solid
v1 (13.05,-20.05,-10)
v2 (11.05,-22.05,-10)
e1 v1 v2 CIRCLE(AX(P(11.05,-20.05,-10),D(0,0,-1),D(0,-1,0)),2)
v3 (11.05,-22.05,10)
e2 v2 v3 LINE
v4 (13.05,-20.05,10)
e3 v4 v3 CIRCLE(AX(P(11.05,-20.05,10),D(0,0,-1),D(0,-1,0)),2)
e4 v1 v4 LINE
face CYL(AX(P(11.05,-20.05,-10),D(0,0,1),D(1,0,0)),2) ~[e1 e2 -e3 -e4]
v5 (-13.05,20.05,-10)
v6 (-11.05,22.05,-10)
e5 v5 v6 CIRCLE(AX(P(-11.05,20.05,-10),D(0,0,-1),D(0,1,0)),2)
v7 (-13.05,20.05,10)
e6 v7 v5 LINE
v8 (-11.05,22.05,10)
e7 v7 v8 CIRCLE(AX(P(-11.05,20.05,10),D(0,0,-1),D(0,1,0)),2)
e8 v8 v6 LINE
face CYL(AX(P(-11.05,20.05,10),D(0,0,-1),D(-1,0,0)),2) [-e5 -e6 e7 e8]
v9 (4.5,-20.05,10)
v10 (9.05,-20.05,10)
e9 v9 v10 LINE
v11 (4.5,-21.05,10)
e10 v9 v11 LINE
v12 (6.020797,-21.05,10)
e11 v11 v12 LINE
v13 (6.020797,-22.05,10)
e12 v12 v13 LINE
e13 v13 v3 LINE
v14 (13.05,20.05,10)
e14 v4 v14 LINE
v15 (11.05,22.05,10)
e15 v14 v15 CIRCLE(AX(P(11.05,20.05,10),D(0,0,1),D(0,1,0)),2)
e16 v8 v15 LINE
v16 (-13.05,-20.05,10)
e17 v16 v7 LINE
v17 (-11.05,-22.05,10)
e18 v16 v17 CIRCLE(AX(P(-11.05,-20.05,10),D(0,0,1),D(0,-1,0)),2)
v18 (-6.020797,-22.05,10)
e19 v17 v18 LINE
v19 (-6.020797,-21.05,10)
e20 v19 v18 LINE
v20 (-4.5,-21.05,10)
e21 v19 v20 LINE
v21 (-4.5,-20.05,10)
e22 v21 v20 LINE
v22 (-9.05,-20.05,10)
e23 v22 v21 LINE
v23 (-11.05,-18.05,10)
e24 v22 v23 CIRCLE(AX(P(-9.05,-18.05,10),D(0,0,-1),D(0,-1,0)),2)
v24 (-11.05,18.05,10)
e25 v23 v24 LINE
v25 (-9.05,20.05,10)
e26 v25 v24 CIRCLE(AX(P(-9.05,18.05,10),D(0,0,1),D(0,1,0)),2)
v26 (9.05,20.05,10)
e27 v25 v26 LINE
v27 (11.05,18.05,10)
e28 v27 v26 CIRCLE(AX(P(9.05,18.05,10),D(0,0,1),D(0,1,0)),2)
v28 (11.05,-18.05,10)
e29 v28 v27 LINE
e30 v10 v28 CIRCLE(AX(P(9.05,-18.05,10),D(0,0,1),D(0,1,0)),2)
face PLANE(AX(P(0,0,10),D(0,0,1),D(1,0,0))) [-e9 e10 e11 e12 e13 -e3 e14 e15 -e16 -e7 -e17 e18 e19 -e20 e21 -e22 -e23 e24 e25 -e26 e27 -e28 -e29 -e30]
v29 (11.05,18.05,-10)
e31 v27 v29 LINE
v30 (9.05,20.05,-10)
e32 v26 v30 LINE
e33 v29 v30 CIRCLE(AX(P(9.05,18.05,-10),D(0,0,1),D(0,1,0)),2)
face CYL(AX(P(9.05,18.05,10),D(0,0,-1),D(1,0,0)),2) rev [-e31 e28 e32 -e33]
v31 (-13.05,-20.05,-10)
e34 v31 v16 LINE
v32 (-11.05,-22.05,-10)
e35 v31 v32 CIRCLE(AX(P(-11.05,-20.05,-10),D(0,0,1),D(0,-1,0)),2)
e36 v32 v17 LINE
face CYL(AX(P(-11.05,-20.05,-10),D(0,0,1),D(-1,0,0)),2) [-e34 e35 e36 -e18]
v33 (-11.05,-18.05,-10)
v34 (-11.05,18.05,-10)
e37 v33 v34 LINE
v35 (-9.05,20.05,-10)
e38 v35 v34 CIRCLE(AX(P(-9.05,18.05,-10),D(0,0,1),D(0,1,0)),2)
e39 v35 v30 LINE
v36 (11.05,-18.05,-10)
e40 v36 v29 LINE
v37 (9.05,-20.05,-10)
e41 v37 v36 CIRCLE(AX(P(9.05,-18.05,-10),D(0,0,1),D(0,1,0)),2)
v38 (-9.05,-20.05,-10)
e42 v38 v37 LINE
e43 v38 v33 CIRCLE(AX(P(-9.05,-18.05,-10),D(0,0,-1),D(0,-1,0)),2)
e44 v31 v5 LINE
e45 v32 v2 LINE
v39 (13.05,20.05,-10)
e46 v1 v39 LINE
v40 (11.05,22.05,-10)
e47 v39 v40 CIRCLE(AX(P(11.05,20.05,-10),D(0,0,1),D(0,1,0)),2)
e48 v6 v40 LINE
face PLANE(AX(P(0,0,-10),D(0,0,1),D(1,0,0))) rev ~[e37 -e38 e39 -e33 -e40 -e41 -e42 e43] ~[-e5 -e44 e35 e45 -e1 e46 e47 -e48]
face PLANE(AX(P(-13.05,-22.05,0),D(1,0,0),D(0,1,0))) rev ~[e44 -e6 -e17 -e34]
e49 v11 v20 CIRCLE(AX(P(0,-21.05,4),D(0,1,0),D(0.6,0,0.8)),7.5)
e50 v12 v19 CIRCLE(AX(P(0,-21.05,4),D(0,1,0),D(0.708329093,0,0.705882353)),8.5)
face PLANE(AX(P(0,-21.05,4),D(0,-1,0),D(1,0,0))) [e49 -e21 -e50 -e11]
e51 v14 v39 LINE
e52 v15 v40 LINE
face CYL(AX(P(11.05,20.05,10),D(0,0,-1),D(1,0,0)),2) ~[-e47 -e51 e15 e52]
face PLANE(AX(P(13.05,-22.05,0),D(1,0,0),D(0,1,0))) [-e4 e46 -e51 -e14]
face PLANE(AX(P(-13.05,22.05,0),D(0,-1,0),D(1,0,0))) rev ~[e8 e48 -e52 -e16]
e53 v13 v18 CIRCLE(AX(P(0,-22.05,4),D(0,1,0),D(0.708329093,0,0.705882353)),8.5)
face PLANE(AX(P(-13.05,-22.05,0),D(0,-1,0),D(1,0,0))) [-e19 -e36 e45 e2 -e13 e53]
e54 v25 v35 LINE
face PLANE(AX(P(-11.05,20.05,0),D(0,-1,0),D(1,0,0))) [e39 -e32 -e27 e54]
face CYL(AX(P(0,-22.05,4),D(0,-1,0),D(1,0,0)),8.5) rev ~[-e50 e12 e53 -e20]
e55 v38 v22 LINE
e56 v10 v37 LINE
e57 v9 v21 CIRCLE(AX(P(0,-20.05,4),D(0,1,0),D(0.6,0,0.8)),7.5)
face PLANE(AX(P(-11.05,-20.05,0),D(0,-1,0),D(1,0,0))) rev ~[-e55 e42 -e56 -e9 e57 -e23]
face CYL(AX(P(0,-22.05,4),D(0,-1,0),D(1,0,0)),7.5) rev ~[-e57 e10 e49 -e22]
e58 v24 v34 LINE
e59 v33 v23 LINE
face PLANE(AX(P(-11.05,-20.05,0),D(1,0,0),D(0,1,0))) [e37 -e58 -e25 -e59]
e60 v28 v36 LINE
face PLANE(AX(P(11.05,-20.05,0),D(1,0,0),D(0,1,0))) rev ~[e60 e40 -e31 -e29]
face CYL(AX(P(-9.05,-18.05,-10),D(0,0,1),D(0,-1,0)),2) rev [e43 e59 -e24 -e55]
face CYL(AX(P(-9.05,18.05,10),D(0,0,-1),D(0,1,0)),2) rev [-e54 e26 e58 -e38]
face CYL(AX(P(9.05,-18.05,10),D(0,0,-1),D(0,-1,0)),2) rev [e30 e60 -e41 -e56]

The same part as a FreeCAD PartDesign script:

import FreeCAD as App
import Part
import Sketcher


def edges_at(feature, points):
    """Names of the edges that pass closest to the given points."""
    edges = feature.Shape.Edges
    near = lambda p: min(range(len(edges)), key=lambda i: edges[i].distToShape(Part.Vertex(*p))[0])
    return sorted({f"Edge{near(p) + 1}" for p in points})

doc = App.newDocument("Part")
body = doc.addObject("PartDesign::Body", "Body")

# Sketch on XY plane
sketch1 = body.newObject("Sketcher::SketchObject", "Sketch")
sketch1.AttachmentSupport = (doc.getObject("XY_Plane"), [""])
sketch1.MapMode = "FlatFace"
sketch1.addGeometry([
    Part.LineSegment(App.Vector(-13.05, 22.05, 0), App.Vector(-13.05, -22.05, 0)),  # 0
    Part.LineSegment(App.Vector(-13.05, -22.05, 0), App.Vector(13.05, -22.05, 0)),  # 1
    Part.LineSegment(App.Vector(13.05, -22.05, 0), App.Vector(13.05, 22.05, 0)),  # 2
    Part.LineSegment(App.Vector(13.05, 22.05, 0), App.Vector(-13.05, 22.05, 0)),  # 3
    Part.LineSegment(App.Vector(11.05, -20.05, 0), App.Vector(-11.05, -20.05, 0)),  # 4
    Part.LineSegment(App.Vector(-11.05, -20.05, 0), App.Vector(-11.05, 20.05, 0)),  # 5
    Part.LineSegment(App.Vector(-11.05, 20.05, 0), App.Vector(11.05, 20.05, 0)),  # 6
    Part.LineSegment(App.Vector(11.05, 20.05, 0), App.Vector(11.05, -20.05, 0)),  # 7
], False)
sketch1.addConstraint([
    Sketcher.Constraint("Coincident", 0, 2, 1, 1),
    Sketcher.Constraint("Coincident", 1, 2, 2, 1),
    Sketcher.Constraint("Coincident", 2, 2, 3, 1),
    Sketcher.Constraint("Coincident", 3, 2, 0, 1),
    Sketcher.Constraint("Coincident", 4, 2, 5, 1),
    Sketcher.Constraint("Coincident", 5, 2, 6, 1),
    Sketcher.Constraint("Coincident", 6, 2, 7, 1),
    Sketcher.Constraint("Coincident", 7, 2, 4, 1),
    Sketcher.Constraint("Vertical", 0),
    Sketcher.Constraint("Horizontal", 1),
    Sketcher.Constraint("Vertical", 2),
    Sketcher.Constraint("Horizontal", 3),
    Sketcher.Constraint("Horizontal", 4),
    Sketcher.Constraint("Vertical", 5),
    Sketcher.Constraint("Horizontal", 6),
    Sketcher.Constraint("Vertical", 7),
    Sketcher.Constraint("Symmetric", 0, 2, 2, 2, -1, 1),
    Sketcher.Constraint("Symmetric", 4, 2, 6, 2, -1, 1),
    Sketcher.Constraint("DistanceX", 1, 1, 1, 2, 26.1),
    Sketcher.Constraint("DistanceX", 4, 2, 4, 1, 22.1),
    Sketcher.Constraint("DistanceY", 0, 2, 0, 1, 44.1),
    Sketcher.Constraint("DistanceY", 5, 1, 5, 2, 40.1),
])
pad1 = body.newObject("PartDesign::Pad", "Pad")
pad1.Profile = sketch1
pad1.Length = 20
pad1.Midplane = True

# Sketch on XZ plane
sketch2 = body.newObject("Sketcher::SketchObject", "Sketch001")
sketch2.AttachmentSupport = (doc.getObject("XZ_Plane"), [""])
sketch2.MapMode = "FlatFace"
sketch2.AttachmentOffset = App.Placement(App.Vector(0, 0, 22.05), App.Rotation())
sketch2.addGeometry(Part.Circle(App.Vector(0, 4, 0), App.Vector(0, 0, 1), 7.5), False)
sketch2.addConstraint([
    Sketcher.Constraint("PointOnObject", 0, 3, -2),
    Sketcher.Constraint("Diameter", 0, 15.0),
    Sketcher.Constraint("DistanceY", -1, 1, 0, 3, 4.0),
])
pocket1 = body.newObject("PartDesign::Pocket", "Pocket")
pocket1.Profile = sketch2
pocket1.Length = 10

# Sketch on XZ plane
sketch3 = body.newObject("Sketcher::SketchObject", "Sketch002")
sketch3.AttachmentSupport = (doc.getObject("XZ_Plane"), [""])
sketch3.MapMode = "FlatFace"
sketch3.AttachmentOffset = App.Placement(App.Vector(0, 0, 22.05), App.Rotation())
sketch3.addGeometry([
    Part.Circle(App.Vector(0, 4, 0), App.Vector(0, 0, 1), 8.5),
    Part.Circle(App.Vector(0, 4, 0), App.Vector(0, 0, 1), 7.5),
], False)
sketch3.addConstraint([
    Sketcher.Constraint("Coincident", 1, 3, 0, 3),
    Sketcher.Constraint("PointOnObject", 0, 3, -2),
    Sketcher.Constraint("Diameter", 0, 17.0),
    Sketcher.Constraint("Diameter", 1, 15.0),
    Sketcher.Constraint("DistanceY", -1, 1, 0, 3, 4.0),
])
pocket2 = body.newObject("PartDesign::Pocket", "Pocket001")
pocket2.Profile = sketch3
pocket2.Length = 1
doc.recompute()

fillet = body.newObject("PartDesign::Fillet", "Fillet")
fillet.Base = (pocket2, edges_at(pocket2, [
    (-13.05, -22.05, 0),
    (13.05, -22.05, 0),
    (13.05, 22.05, 0),
    (-13.05, 22.05, 0),
]))
fillet.Radius = 2
doc.recompute()

fillet2 = body.newObject("PartDesign::Fillet", "Fillet001")
fillet2.Base = (fillet, edges_at(fillet, [
    (-11.05, 20.05, 0),
    (11.05, 20.05, 0),
    (11.05, -20.05, 0),
    (-11.05, -20.05, 0),
]))
fillet2.Radius = 2

doc.recompute()
